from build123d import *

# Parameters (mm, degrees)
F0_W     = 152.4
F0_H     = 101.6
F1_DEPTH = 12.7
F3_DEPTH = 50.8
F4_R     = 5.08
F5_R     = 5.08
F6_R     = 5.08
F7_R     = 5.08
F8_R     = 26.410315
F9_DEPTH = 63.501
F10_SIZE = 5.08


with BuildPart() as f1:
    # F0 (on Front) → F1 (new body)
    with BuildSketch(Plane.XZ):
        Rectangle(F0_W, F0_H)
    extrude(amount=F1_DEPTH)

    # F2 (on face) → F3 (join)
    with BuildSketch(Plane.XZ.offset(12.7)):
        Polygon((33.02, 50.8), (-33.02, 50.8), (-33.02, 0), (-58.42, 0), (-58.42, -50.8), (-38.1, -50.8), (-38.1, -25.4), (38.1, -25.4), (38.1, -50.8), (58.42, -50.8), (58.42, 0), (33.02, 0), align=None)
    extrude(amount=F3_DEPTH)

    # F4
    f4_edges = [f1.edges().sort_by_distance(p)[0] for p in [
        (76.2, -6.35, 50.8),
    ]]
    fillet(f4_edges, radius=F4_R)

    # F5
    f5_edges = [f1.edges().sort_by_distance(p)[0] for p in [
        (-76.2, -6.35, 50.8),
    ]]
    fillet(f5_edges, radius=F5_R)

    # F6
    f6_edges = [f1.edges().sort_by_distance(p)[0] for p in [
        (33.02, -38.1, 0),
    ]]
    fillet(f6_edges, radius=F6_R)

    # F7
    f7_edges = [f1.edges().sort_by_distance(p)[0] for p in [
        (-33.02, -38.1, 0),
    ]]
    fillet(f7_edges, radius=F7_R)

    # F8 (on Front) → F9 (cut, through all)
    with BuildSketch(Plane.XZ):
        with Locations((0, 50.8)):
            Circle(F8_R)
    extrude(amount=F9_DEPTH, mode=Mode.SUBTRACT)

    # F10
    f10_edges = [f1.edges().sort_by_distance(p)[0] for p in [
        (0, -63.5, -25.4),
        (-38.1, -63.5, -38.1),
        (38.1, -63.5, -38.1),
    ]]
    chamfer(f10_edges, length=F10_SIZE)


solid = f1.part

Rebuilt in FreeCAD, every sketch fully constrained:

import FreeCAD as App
import Part
import Sketcher
from FreeCAD import Vector
Q = App.Units.Quantity


def edges_at(feature, points):
    """Names of the edges that pass closest to the given points."""
    edges = feature.Shape.Edges
    near = lambda p: min(range(len(edges)), key=lambda i: edges[i].distToShape(Part.Vertex(*p))[0])
    return sorted({f"Edge{near(p) + 1}" for p in points})


def add_polygon(sketch, points):
    """Adds a closed chain of lines whose ends are joined by coincident constraints."""
    first, n = sketch.GeometryCount, len(points)
    for a, b in zip(points, points[1:] + points[:1]):
        sketch.addGeometry(Part.LineSegment(App.Vector(*a, 0), App.Vector(*b, 0)), False)
    for i in range(n):
        sketch.addConstraint(Sketcher.Constraint("Coincident", first + i, 2, first + (i + 1) % n, 1))

doc = App.newDocument("Part")
params = doc.addObject("Spreadsheet::Sheet", "Params")
for row, (alias, value) in enumerate([
    ("sketch1_width", "6 in"),
    ("sketch1_height", "4 in"),
    ("pad1_length", "0.5 in"),
    ("sketch2_width", "1 in"),
    ("sketch2_width2", "3 in"),
    ("sketch2_height", "2 in"),
    ("sketch2_width3", "2.6 in"),
    ("pad2_length", "2 in"),
    ("fillet_radius", "0.2 in"),
    ("fillet2_radius", "0.2 in"),
    ("fillet3_radius", "0.2 in"),
    ("fillet4_radius", "0.2 in"),
    ("chamfer_size", "0.2 in"),
], start=1):
    params.set(f"A{row}", alias)
    params.set(f"B{row}", "=" + value)
    params.setAlias(f"B{row}", alias)

body = doc.addObject("PartDesign::Body", "Body")

# Sketch on XZ plane
sketch1 = body.newObject("Sketcher::SketchObject", "Sketch")
sketch1.AttachmentSupport = (doc.getObject("XZ_Plane"), [""])
sketch1.MapMode = "FlatFace"
add_polygon(sketch1, [(-76.2, 50.8), (-76.2, -50.8), (76.2, -50.8), (76.2, 50.8)])  # lines 0-3
sketch1.addConstraint(Sketcher.Constraint("Vertical", 0))
sketch1.addConstraint(Sketcher.Constraint("Horizontal", 1))
sketch1.addConstraint(Sketcher.Constraint("Vertical", 2))
sketch1.addConstraint(Sketcher.Constraint("Horizontal", 3))
sketch1.addConstraint(Sketcher.Constraint("Symmetric", 0, 2, 2, 2, -1, 1))
sketch1.addConstraint(Sketcher.Constraint("DistanceX", 1, 1, 1, 2, Q("6 in")))
sketch1.addConstraint(Sketcher.Constraint("DistanceY", 0, 2, 0, 1, Q("4 in")))
sketch1.setExpression("Constraints[9]", "Params.sketch1_width")
sketch1.setExpression("Constraints[10]", "Params.sketch1_height")
pad1 = body.newObject("PartDesign::Pad", "Pad")
pad1.Profile = sketch1
pad1.setExpression("Length", "Params.pad1_length")

# Sketch on XZ plane
sketch2 = body.newObject("Sketcher::SketchObject", "Sketch001")
sketch2.AttachmentSupport = (doc.getObject("XZ_Plane"), [""])
sketch2.MapMode = "FlatFace"
sketch2.AttachmentOffset = App.Placement(Vector(0, 0, 0.5 * 25.4), App.Rotation())
add_polygon(sketch2, [(33.02, 50.8), (-33.02, 50.8), (-33.02, 0), (-58.42, 0), (-58.42, -50.8), (-38.1, -50.8), (-38.1, -25.4), (38.1, -25.4), (38.1, -50.8), (58.42, -50.8), (58.42, 0), (33.02, 0)])  # lines 0-11
sketch2.addConstraint(Sketcher.Constraint("Horizontal", 0))
sketch2.addConstraint(Sketcher.Constraint("Vertical", 1))
sketch2.addConstraint(Sketcher.Constraint("Horizontal", 2))
sketch2.addConstraint(Sketcher.Constraint("Vertical", 3))
sketch2.addConstraint(Sketcher.Constraint("Horizontal", 4))
sketch2.addConstraint(Sketcher.Constraint("Vertical", 5))
sketch2.addConstraint(Sketcher.Constraint("Horizontal", 6))
sketch2.addConstraint(Sketcher.Constraint("Vertical", 7))
sketch2.addConstraint(Sketcher.Constraint("Horizontal", 8))
sketch2.addConstraint(Sketcher.Constraint("Vertical", 9))
sketch2.addConstraint(Sketcher.Constraint("Horizontal", 10))
sketch2.addConstraint(Sketcher.Constraint("Vertical", 11))
sketch2.addConstraint(Sketcher.Constraint("Symmetric", 2, 2, 9, 2, -1, 1))
sketch2.addConstraint(Sketcher.Constraint("Symmetric", 4, 2, 7, 2, -2))
sketch2.addConstraint(Sketcher.Constraint("Symmetric", 1, 2, 10, 2, -2))
sketch2.addConstraint(Sketcher.Constraint("Equal", 1, 3))
sketch2.addConstraint(Sketcher.Constraint("Equal", 10, 5))
sketch2.addConstraint(Sketcher.Constraint("DistanceX", 2, 2, 2, 1, Q("1 in")))
sketch2.addConstraint(Sketcher.Constraint("DistanceX", 6, 1, 6, 2, Q("3 in")))
sketch2.addConstraint(Sketcher.Constraint("DistanceY", 1, 2, 1, 1, Q("2 in")))
sketch2.addConstraint(Sketcher.Constraint("DistanceX", 0, 2, 0, 1, Q("2.6 in")))
sketch2.setExpression("Constraints[29]", "Params.sketch2_width")
sketch2.setExpression("Constraints[30]", "Params.sketch2_width2")
sketch2.setExpression("Constraints[31]", "Params.sketch2_height")
sketch2.setExpression("Constraints[32]", "Params.sketch2_width3")
pad2 = body.newObject("PartDesign::Pad", "Pad001")
pad2.Profile = sketch2
pad2.setExpression("Length", "Params.pad2_length")
doc.recompute()

fillet = body.newObject("PartDesign::Fillet", "Fillet")
fillet.Base = (pad2, edges_at(pad2, [(76.2, -6.35, 50.8)]))
fillet.setExpression("Radius", "Params.fillet_radius")
doc.recompute()

fillet2 = body.newObject("PartDesign::Fillet", "Fillet001")
fillet2.Base = (fillet, edges_at(fillet, [(-76.2, -6.35, 50.8)]))
fillet2.setExpression("Radius", "Params.fillet2_radius")
doc.recompute()

fillet3 = body.newObject("PartDesign::Fillet", "Fillet002")
fillet3.Base = (fillet2, edges_at(fillet2, [(33.02, -38.1, 0)]))
fillet3.setExpression("Radius", "Params.fillet3_radius")
doc.recompute()

fillet4 = body.newObject("PartDesign::Fillet", "Fillet003")
fillet4.Base = (fillet3, edges_at(fillet3, [(-33.02, -38.1, 0)]))
fillet4.setExpression("Radius", "Params.fillet4_radius")

# Sketch on XZ plane
sketch3 = body.newObject("Sketcher::SketchObject", "Sketch002")
sketch3.AttachmentSupport = (doc.getObject("XZ_Plane"), [""])
sketch3.MapMode = "FlatFace"
sketch3.addGeometry(Part.Circle(Vector(0, 50.8, 0), Vector(0, 0, 1), 26.410315), False)
sketch3.addConstraint(Sketcher.Constraint("PointOnObject", 0, 3, -2))
sketch3.addConstraint(Sketcher.Constraint("DistanceY", -1, 1, 0, 3, Q("2 in")))
sketch3.addConstraint(Sketcher.Constraint("Diameter", 0, 52.82063))
pocket1 = body.newObject("PartDesign::Pocket", "Pocket")
pocket1.Profile = sketch3
pocket1.Type = "ThroughAll"
pocket1.Reversed = True
doc.recompute()

chamfer = body.newObject("PartDesign::Chamfer", "Chamfer")
chamfer.Base = (pocket1, edges_at(pocket1, [(0, -63.5, -25.4), (-38.1, -63.5, -38.1), (38.1, -63.5, -38.1)]))
chamfer.setExpression("Size", "Params.chamfer_size")

doc.recompute()
